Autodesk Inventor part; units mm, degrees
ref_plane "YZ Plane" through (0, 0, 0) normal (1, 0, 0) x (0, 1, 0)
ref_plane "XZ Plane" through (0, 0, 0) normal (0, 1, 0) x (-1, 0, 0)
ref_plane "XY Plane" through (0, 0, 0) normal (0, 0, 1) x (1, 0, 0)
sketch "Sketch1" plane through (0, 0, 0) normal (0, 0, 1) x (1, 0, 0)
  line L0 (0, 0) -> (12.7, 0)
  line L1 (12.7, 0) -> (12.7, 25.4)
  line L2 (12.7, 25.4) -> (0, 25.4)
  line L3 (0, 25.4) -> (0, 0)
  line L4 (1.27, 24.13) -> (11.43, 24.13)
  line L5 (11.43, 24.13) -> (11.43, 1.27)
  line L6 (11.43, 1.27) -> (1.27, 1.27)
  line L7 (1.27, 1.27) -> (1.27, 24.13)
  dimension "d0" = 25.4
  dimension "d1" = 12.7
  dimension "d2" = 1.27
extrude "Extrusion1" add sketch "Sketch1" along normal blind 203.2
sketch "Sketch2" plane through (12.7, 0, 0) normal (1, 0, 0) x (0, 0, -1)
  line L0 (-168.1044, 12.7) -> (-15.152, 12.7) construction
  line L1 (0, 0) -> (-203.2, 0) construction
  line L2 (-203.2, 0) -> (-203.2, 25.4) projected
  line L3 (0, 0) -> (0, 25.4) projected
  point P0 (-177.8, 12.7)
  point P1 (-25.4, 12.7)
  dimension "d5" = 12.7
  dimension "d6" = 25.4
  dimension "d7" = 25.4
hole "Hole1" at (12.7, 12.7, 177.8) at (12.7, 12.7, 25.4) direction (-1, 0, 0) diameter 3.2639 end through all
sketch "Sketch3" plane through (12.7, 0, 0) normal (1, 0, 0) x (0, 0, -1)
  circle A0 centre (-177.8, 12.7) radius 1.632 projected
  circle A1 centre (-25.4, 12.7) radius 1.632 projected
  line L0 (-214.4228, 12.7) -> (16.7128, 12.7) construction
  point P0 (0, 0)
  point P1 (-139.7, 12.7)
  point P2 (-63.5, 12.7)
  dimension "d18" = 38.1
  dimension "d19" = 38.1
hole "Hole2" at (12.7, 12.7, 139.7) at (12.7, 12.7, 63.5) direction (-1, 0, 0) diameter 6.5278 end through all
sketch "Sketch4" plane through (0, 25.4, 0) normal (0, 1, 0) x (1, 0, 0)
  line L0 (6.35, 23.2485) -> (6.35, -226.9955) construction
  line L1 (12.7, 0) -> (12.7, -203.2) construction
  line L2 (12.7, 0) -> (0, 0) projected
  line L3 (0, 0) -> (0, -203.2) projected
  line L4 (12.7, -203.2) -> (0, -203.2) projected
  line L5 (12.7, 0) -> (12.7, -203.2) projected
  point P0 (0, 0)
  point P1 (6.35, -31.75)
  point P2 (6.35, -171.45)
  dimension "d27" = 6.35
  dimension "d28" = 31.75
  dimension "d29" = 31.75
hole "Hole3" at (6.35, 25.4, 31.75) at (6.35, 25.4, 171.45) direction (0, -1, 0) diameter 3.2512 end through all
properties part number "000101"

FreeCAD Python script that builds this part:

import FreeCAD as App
import Part
import Sketcher
Q = App.Units.Quantity

doc = App.newDocument("Part")
body = doc.addObject("PartDesign::Body", "Body")

# Sketch on XY plane
sketch1 = body.newObject("Sketcher::SketchObject", "Sketch")
sketch1.AttachmentSupport = (doc.getObject("XY_Plane"), [""])
sketch1.MapMode = "FlatFace"
sketch1.addGeometry([
    Part.LineSegment(App.Vector(0, 25, 0), App.Vector(0, 0, 0)),  # 0
    Part.LineSegment(App.Vector(0, 0, 0), App.Vector(13, 0, 0)),  # 1
    Part.LineSegment(App.Vector(13, 0, 0), App.Vector(13, 25, 0)),  # 2
    Part.LineSegment(App.Vector(13, 25, 0), App.Vector(0, 25, 0)),  # 3
    Part.LineSegment(App.Vector(1, 1, 0), App.Vector(1, 24, 0)),  # 4
    Part.LineSegment(App.Vector(1, 24, 0), App.Vector(11, 24, 0)),  # 5
    Part.LineSegment(App.Vector(11, 24, 0), App.Vector(11, 1, 0)),  # 6
    Part.LineSegment(App.Vector(11, 1, 0), App.Vector(1, 1, 0)),  # 7
], False)
sketch1.addConstraint([
    Sketcher.Constraint("Coincident", 0, 2, 1, 1),
    Sketcher.Constraint("Coincident", 1, 2, 2, 1),
    Sketcher.Constraint("Coincident", 2, 2, 3, 1),
    Sketcher.Constraint("Coincident", 3, 2, 0, 1),
    Sketcher.Constraint("Coincident", 4, 2, 5, 1),
    Sketcher.Constraint("Coincident", 5, 2, 6, 1),
    Sketcher.Constraint("Coincident", 6, 2, 7, 1),
    Sketcher.Constraint("Coincident", 7, 2, 4, 1),
    Sketcher.Constraint("Vertical", 0),
    Sketcher.Constraint("Horizontal", 1),
    Sketcher.Constraint("Vertical", 2),
    Sketcher.Constraint("Horizontal", 3),
    Sketcher.Constraint("Vertical", 4),
    Sketcher.Constraint("Horizontal", 5),
    Sketcher.Constraint("Vertical", 6),
    Sketcher.Constraint("Horizontal", 7),
    Sketcher.Constraint("Coincident", 0, 2, -1, 1),
    Sketcher.Constraint("DistanceY", 0, 2, 0, 1, Q("1 in")),
    Sketcher.Constraint("DistanceX", 1, 1, 1, 2, Q("0.5 in")),
    Sketcher.Constraint("DistanceX", -1, 1, 4, 2, Q("0.05 in")),
    Sketcher.Constraint("DistanceY", -1, 1, 6, 2, Q("0.05 in")),
    Sketcher.Constraint("DistanceY", 4, 2, 3, 2, Q("0.05 in")),
    Sketcher.Constraint("DistanceX", 5, 2, 2, 2, Q("0.05 in")),
])
pad1 = body.newObject("PartDesign::Pad", "Pad")
pad1.Profile = sketch1
pad1.Length = Q("8 in")

# Sketch on YZ plane
sketch2 = body.newObject("Sketcher::SketchObject", "Sketch001")
sketch2.AttachmentSupport = (doc.getObject("YZ_Plane"), [""])
sketch2.MapMode = "FlatFace"
sketch2.AttachmentOffset = App.Placement(App.Vector(0, 0, 0.5 * 25.4), App.Rotation())
sketch2.addGeometry([
    Part.Circle(App.Vector(12.7, 177.8, 0), App.Vector(0, 0, 1), 1.6),
    Part.Circle(App.Vector(12.7, 25.4, 0), App.Vector(0, 0, 1), 1.6),
], False)
sketch2.addConstraint([
    Sketcher.Constraint("Equal", 0, 1),
    Sketcher.Constraint("Vertical", 0, 3, 1, 3),
    Sketcher.Constraint("DistanceY", -1, 1, 0, 3, Q("7 in")),
    Sketcher.Constraint("DistanceY", -1, 1, 1, 3, Q("1 in")),
    Sketcher.Constraint("Diameter", 0, Q("0.1285 in")),
    Sketcher.Constraint("DistanceX", -1, 1, 0, 3, Q("0.5 in")),
])
doc.recompute()
hole = body.newObject("PartDesign::Hole", "Hole")
hole.Profile = sketch2
hole.ThreadType = "None"
hole.Diameter = Q("0.1285 in")
hole.DepthType = "ThroughAll"

# Sketch on YZ plane
sketch3 = body.newObject("Sketcher::SketchObject", "Sketch002")
sketch3.AttachmentSupport = (doc.getObject("YZ_Plane"), [""])
sketch3.MapMode = "FlatFace"
sketch3.AttachmentOffset = App.Placement(App.Vector(0, 0, 0.5 * 25.4), App.Rotation())
sketch3.addGeometry([
    Part.Circle(App.Vector(12.7, 139.7, 0), App.Vector(0, 0, 1), 3.3),
    Part.Circle(App.Vector(12.7, 63.5, 0), App.Vector(0, 0, 1), 3.3),
], False)
sketch3.addConstraint([
    Sketcher.Constraint("Equal", 0, 1),
    Sketcher.Constraint("Vertical", 0, 3, 1, 3),
    Sketcher.Constraint("Diameter", 0, Q("0.257 in")),
    Sketcher.Constraint("DistanceY", 1, 3, 0, 3, Q("3 in")),
    Sketcher.Constraint("DistanceX", -1, 1, 0, 3, Q("0.5 in")),
    Sketcher.Constraint("DistanceY", -1, 1, 0, 3, Q("5.5 in")),
])
doc.recompute()
hole2 = body.newObject("PartDesign::Hole", "Hole001")
hole2.Profile = sketch3
hole2.ThreadType = "None"
hole2.Diameter = Q("0.257 in")
hole2.DepthType = "ThroughAll"

# Sketch on XZ plane
sketch4 = body.newObject("Sketcher::SketchObject", "Sketch003")
sketch4.AttachmentSupport = (doc.getObject("XZ_Plane"), [""])
sketch4.MapMode = "FlatFace"
sketch4.AttachmentOffset = App.Placement(App.Vector(0, 0, -1 * 25.4), App.Rotation())
sketch4.addGeometry([
    Part.Circle(App.Vector(6.3, 31.8, 0), App.Vector(0, 0, 1), 1.6),
    Part.Circle(App.Vector(6.3, 171.4, 0), App.Vector(0, 0, 1), 1.6),
], False)
sketch4.addConstraint([
    Sketcher.Constraint("Equal", 0, 1),
    Sketcher.Constraint("Vertical", 0, 3, 1, 3),
    Sketcher.Constraint("Diameter", 0, Q("0.128 in")),
    Sketcher.Constraint("DistanceY", 0, 3, 1, 3, Q("5.5 in")),
    Sketcher.Constraint("DistanceX", -1, 1, 0, 3, Q("0.25 in")),
    Sketcher.Constraint("DistanceY", -1, 1, 0, 3, Q("1.25 in")),
])
doc.recompute()
hole3 = body.newObject("PartDesign::Hole", "Hole002")
hole3.Profile = sketch4
hole3.ThreadType = "None"
hole3.Diameter = Q("0.128 in")
hole3.DepthType = "ThroughAll"
hole3.Reversed = True

doc.recompute()
